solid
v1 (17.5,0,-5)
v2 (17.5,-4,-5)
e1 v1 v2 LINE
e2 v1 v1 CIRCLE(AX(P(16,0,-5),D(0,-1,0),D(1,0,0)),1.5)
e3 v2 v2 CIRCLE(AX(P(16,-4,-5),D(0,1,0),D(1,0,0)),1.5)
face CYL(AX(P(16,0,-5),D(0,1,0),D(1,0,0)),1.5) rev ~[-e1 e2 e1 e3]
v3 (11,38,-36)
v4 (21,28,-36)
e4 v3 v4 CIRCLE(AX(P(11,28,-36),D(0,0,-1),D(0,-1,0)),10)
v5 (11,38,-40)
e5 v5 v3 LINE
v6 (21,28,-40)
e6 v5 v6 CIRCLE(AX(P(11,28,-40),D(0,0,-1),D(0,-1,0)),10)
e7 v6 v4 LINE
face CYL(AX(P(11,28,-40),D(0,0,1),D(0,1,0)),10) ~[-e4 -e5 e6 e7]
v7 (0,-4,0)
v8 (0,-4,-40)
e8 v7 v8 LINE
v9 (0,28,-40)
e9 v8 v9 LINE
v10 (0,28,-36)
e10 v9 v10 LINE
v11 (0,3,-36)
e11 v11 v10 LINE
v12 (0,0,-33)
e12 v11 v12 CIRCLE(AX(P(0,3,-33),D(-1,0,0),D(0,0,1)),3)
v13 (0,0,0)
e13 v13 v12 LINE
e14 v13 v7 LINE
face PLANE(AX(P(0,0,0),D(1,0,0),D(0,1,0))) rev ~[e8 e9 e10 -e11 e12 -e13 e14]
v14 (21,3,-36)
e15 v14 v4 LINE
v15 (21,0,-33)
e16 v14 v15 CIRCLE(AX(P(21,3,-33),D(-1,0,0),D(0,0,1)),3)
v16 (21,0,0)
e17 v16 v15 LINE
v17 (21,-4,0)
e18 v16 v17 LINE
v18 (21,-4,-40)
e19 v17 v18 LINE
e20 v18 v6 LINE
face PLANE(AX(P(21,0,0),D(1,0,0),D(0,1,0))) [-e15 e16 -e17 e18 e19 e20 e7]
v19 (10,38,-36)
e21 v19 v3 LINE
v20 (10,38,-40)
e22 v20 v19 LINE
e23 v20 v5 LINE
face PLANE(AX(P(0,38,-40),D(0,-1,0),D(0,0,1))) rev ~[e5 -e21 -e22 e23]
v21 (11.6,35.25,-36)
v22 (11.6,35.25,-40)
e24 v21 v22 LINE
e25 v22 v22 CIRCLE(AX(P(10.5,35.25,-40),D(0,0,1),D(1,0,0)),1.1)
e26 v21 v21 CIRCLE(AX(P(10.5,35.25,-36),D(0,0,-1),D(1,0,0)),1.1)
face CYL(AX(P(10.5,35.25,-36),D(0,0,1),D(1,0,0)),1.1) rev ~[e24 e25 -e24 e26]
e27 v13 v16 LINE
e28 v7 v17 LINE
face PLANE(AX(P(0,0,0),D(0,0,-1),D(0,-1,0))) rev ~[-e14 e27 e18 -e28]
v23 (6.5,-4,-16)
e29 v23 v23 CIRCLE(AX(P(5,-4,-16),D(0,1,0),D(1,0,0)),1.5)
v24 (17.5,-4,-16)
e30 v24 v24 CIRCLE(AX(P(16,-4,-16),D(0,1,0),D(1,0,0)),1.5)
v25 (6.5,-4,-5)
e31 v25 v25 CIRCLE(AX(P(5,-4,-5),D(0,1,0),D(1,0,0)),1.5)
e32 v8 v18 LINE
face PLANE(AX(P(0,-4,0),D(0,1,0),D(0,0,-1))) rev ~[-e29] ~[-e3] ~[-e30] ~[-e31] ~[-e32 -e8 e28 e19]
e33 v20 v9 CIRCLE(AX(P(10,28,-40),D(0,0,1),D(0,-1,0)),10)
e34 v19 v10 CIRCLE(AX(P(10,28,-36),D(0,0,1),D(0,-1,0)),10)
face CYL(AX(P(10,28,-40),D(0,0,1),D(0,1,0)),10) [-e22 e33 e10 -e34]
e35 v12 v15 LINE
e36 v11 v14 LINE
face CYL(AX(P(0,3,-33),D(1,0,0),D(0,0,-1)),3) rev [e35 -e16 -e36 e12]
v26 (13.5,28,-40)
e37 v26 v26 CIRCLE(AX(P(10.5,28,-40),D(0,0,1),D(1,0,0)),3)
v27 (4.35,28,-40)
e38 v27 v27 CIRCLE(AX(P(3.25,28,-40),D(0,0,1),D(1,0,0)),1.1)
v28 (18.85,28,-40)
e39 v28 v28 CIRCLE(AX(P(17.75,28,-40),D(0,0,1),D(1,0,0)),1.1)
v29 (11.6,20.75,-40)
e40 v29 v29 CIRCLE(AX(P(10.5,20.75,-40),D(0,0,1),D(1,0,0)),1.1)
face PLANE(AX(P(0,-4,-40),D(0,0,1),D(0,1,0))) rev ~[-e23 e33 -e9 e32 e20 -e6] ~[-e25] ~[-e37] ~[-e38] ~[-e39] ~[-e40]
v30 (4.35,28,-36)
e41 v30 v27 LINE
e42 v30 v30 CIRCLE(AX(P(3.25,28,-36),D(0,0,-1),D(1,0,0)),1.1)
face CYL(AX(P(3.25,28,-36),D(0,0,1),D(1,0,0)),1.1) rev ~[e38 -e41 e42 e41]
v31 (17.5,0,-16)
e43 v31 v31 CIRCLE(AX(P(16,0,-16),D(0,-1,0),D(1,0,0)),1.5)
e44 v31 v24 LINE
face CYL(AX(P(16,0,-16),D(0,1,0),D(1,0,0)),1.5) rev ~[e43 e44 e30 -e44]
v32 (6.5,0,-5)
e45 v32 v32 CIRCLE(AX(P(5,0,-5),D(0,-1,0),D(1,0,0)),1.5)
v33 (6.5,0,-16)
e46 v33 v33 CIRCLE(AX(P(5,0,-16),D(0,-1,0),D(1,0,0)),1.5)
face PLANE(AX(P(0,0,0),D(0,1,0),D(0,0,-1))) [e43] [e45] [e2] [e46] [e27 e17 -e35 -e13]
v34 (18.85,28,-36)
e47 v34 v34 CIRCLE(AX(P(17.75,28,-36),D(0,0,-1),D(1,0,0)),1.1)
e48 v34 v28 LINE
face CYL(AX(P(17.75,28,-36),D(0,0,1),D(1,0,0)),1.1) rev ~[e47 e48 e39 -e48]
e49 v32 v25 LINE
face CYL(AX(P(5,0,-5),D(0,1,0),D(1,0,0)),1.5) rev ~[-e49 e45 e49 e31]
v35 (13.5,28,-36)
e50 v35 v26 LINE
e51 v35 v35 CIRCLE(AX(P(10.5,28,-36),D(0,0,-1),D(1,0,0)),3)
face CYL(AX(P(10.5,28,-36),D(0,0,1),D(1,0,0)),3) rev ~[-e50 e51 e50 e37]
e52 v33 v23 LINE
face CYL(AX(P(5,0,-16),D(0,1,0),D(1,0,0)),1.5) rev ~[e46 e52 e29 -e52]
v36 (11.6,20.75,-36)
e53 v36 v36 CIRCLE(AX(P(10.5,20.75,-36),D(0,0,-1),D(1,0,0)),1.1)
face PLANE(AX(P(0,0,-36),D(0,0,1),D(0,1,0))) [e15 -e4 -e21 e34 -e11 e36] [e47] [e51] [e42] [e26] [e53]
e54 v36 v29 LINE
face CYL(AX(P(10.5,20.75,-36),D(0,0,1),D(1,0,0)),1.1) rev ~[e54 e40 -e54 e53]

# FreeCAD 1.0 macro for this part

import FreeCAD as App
import Part
import Sketcher
from FreeCAD import Vector
Q = App.Units.Quantity


def edges_at(feature, points):
    """Names of the edges that pass closest to the given points."""
    edges = feature.Shape.Edges
    near = lambda p: min(range(len(edges)), key=lambda i: edges[i].distToShape(Part.Vertex(*p))[0])
    return sorted({f"Edge{near(p) + 1}" for p in points})

doc = App.newDocument("Part")
body = doc.addObject("PartDesign::Body", "Body")

# Sketch on YZ plane
sketch1 = body.newObject("Sketcher::SketchObject", "Sketch")
sketch1.AttachmentSupport = (doc.getObject("YZ_Plane"), [""])
sketch1.MapMode = "FlatFace"
sketch1.addGeometry([
    Part.LineSegment(Vector(0, -36, 0), Vector(0, 0, 0)),  # 0
    Part.LineSegment(Vector(0, 0, 0), Vector(-4, 0, 0)),  # 1
    Part.LineSegment(Vector(-4, 0, 0), Vector(-4, -40, 0)),  # 2
    Part.LineSegment(Vector(-4, -40, 0), Vector(38, -40, 0)),  # 3
    Part.LineSegment(Vector(38, -40, 0), Vector(38, -36, 0)),  # 4
    Part.LineSegment(Vector(38, -36, 0), Vector(0, -36, 0)),  # 5
], False)
sketch1.addConstraint([
    Sketcher.Constraint("Coincident", 0, 2, 1, 1),
    Sketcher.Constraint("Coincident", 1, 2, 2, 1),
    Sketcher.Constraint("Coincident", 2, 2, 3, 1),
    Sketcher.Constraint("Coincident", 3, 2, 4, 1),
    Sketcher.Constraint("Coincident", 4, 2, 5, 1),
    Sketcher.Constraint("Coincident", 5, 2, 0, 1),
    Sketcher.Constraint("Vertical", 0),
    Sketcher.Constraint("Horizontal", 1),
    Sketcher.Constraint("Vertical", 2),
    Sketcher.Constraint("Horizontal", 3),
    Sketcher.Constraint("Vertical", 4),
    Sketcher.Constraint("Horizontal", 5),
    Sketcher.Constraint("Coincident", 0, 2, -1, 1),
    Sketcher.Constraint("Equal", 1, 4),
    Sketcher.Constraint("DistanceX", 1, 2, 1, 1, Q("4 mm")),
    Sketcher.Constraint("DistanceX", 5, 2, 5, 1, Q("38 mm")),
    Sketcher.Constraint("DistanceY", 0, 1, 0, 2, Q("36 mm")),
])
pad1 = body.newObject("PartDesign::Pad", "Pad")
pad1.Profile = sketch1
pad1.Length = 21
doc.recompute()

fillet = body.newObject("PartDesign::Fillet", "Fillet")
fillet.Base = (pad1, edges_at(pad1, [(21, 38, -38), (0, 38, -38)]))
fillet.Radius = 10

# Sketch on XY plane
sketch2 = body.newObject("Sketcher::SketchObject", "Sketch001")
sketch2.AttachmentSupport = (doc.getObject("XY_Plane"), [""])
sketch2.MapMode = "FlatFace"
sketch2.AttachmentOffset = App.Placement(Vector(0, 0, -36), App.Rotation())
sketch2.addGeometry([
    Part.Circle(Vector(3.25, 28, 0), Vector(0, 0, 1), 1.1),  # 0
    Part.Circle(Vector(10.5, 28, 0), Vector(0, 0, 1), 3),  # 1
    Part.Circle(Vector(10.5, 35.25, 0), Vector(0, 0, 1), 1.1),  # 2
    Part.Circle(Vector(10.5, 20.75, 0), Vector(0, 0, 1), 1.1),  # 3
    Part.Circle(Vector(17.75, 28, 0), Vector(0, 0, 1), 1.1),  # 4
], False)
sketch2.addConstraint([
    Sketcher.Constraint("Equal", 0, 2),
    Sketcher.Constraint("Equal", 2, 3),
    Sketcher.Constraint("Equal", 3, 4),
    Sketcher.Constraint("Horizontal", 0, 3, 1, 3),
    Sketcher.Constraint("Horizontal", 1, 3, 4, 3),
    Sketcher.Constraint("Vertical", 1, 3, 2, 3),
    Sketcher.Constraint("Vertical", 2, 3, 3, 3),
    Sketcher.Constraint("Diameter", 1, Q("6 mm")),
    Sketcher.Constraint("Diameter", 0, Q("2.2 mm")),
    Sketcher.Constraint("DistanceX", -1, 1, 1, 3, Q("10.5 mm")),
    Sketcher.Constraint("DistanceY", -1, 1, 0, 3, Q("28 mm")),
    Sketcher.Constraint("DistanceY", 3, 3, 2, 3, Q("14.5 mm")),
    Sketcher.Constraint("DistanceX", 0, 3, 4, 3, Q("14.5 mm")),
    Sketcher.Constraint("DistanceX", -1, 1, 0, 3, Q("3.25 mm")),
    Sketcher.Constraint("DistanceY", -1, 1, 2, 3, Q("35.25 mm")),
])
pocket1 = body.newObject("PartDesign::Pocket", "Pocket")
pocket1.Profile = sketch2
pocket1.Length = 21

# Sketch on XZ plane
sketch3 = body.newObject("Sketcher::SketchObject", "Sketch002")
sketch3.AttachmentSupport = (doc.getObject("XZ_Plane"), [""])
sketch3.MapMode = "FlatFace"
sketch3.addGeometry([
    Part.Circle(Vector(5, -5, 0), Vector(0, 0, 1), 1.5),
    Part.Circle(Vector(5, -16, 0), Vector(0, 0, 1), 1.5),
    Part.Circle(Vector(16, -5, 0), Vector(0, 0, 1), 1.5),
    Part.Circle(Vector(16, -16, 0), Vector(0, 0, 1), 1.5),
], False)
sketch3.addConstraint([
    Sketcher.Constraint("Equal", 0, 1),
    Sketcher.Constraint("Equal", 1, 2),
    Sketcher.Constraint("Equal", 2, 3),
    Sketcher.Constraint("Horizontal", 0, 3, 2, 3),
    Sketcher.Constraint("Horizontal", 1, 3, 3, 3),
    Sketcher.Constraint("Vertical", 0, 3, 1, 3),
    Sketcher.Constraint("Vertical", 2, 3, 3, 3),
    Sketcher.Constraint("Diameter", 0, Q("3 mm")),
    Sketcher.Constraint("DistanceX", -1, 1, 0, 3, Q("5 mm")),
    Sketcher.Constraint("DistanceY", 0, 3, -1, 1, Q("5 mm")),
    Sketcher.Constraint("DistanceY", 1, 3, 0, 3, Q("11 mm")),
    Sketcher.Constraint("DistanceX", 0, 3, 2, 3, Q("11 mm")),
])
pocket2 = body.newObject("PartDesign::Pocket", "Pocket001")
pocket2.Profile = sketch3
pocket2.Length = 21
pocket2.Reversed = True
doc.recompute()

fillet2 = body.newObject("PartDesign::Fillet", "Fillet001")
fillet2.Base = (pocket2, edges_at(pocket2, [(10.5, 0, -36)]))
fillet2.Radius = 3

doc.recompute()
